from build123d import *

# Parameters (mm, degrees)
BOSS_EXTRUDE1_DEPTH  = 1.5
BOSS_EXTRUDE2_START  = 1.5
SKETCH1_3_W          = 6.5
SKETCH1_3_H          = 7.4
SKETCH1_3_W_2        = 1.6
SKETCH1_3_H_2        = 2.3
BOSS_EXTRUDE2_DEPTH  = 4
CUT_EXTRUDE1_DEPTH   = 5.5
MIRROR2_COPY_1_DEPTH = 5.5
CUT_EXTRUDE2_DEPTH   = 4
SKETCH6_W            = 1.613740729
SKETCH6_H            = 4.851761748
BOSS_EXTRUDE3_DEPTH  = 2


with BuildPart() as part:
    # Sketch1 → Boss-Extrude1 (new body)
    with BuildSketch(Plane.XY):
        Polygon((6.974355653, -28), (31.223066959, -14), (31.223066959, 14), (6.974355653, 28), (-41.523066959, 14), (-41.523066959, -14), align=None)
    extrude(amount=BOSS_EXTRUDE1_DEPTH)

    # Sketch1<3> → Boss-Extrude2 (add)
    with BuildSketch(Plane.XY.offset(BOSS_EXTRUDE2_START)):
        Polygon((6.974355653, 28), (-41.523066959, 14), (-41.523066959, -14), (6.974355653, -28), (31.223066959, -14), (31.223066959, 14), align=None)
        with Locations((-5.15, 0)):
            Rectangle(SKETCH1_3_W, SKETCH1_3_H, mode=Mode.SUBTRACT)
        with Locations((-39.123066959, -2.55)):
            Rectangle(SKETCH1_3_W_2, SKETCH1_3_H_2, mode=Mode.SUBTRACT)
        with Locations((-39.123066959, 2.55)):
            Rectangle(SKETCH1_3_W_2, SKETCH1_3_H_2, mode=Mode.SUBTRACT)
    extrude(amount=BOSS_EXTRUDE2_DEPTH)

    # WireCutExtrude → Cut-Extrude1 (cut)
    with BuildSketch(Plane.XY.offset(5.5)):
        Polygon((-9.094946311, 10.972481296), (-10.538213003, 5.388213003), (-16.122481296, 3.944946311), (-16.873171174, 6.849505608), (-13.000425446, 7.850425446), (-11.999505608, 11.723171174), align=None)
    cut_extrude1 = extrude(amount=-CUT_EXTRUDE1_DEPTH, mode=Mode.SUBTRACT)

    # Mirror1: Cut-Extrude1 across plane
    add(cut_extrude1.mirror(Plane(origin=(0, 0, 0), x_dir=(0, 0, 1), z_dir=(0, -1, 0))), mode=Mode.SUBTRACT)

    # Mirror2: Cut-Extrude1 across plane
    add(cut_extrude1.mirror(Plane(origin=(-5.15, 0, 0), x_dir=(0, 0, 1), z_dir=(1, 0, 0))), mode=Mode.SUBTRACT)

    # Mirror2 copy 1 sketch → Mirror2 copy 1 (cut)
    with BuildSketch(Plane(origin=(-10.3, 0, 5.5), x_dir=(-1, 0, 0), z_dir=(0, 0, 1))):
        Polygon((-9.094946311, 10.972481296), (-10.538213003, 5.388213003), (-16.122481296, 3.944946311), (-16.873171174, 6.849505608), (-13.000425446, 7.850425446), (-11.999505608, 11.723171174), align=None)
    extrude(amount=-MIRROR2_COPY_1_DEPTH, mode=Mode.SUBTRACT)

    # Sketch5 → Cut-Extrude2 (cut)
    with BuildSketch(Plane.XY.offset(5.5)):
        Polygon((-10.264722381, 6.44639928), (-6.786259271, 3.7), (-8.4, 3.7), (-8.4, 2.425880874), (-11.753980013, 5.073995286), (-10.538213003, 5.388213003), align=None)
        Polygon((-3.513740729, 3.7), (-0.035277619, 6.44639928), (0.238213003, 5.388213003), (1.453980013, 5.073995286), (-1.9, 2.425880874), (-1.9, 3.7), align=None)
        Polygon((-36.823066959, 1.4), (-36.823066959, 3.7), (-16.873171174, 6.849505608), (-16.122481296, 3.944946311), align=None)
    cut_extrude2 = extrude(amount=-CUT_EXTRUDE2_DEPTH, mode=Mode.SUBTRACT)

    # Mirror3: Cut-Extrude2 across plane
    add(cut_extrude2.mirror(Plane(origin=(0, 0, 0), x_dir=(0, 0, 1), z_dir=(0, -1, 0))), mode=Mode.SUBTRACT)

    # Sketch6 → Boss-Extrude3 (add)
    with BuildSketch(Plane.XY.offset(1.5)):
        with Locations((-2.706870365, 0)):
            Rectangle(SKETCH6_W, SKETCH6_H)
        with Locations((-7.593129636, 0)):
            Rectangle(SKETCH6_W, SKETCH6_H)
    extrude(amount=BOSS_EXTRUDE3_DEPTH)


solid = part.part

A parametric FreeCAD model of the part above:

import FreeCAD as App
import Part
import Sketcher
Q = App.Units.Quantity


def add_polygon(sketch, points):
    """Adds a closed chain of lines whose ends are joined by coincident constraints."""
    first, n = sketch.GeometryCount, len(points)
    for a, b in zip(points, points[1:] + points[:1]):
        sketch.addGeometry(Part.LineSegment(App.Vector(*a, 0), App.Vector(*b, 0)), False)
    for i in range(n):
        sketch.addConstraint(Sketcher.Constraint("Coincident", first + i, 2, first + (i + 1) % n, 1))

doc = App.newDocument("Part")
body = doc.addObject("PartDesign::Body", "Body")

sketch1 = body.newObject("Sketcher::SketchObject", "Sketch")
sketch1.AttachmentSupport = (doc.getObject("XY_Plane"), [""])
sketch1.MapMode = "FlatFace"
add_polygon(sketch1, [(6.974356, -28), (31.223067, -14), (31.223067, 14), (6.974356, 28), (-41.523067, 14), (-41.523067, -14)])
sketch1.addConstraint([
    Sketcher.Constraint("Vertical", 1),
    Sketcher.Constraint("Vertical", 4),
    Sketcher.Constraint("Symmetric", 2, 2, 5, 2, -1),
    Sketcher.Constraint("Horizontal", 1, 2, 3, 2),
    Sketcher.Constraint("Horizontal", 0, 2, 4, 2),
    Sketcher.Constraint("Equal", 0, 2),
    Sketcher.Constraint("DistanceY", 1, 1, 1, 2, Q("28 mm")),
    Sketcher.Constraint("Angle", 0, Q("30 deg")),
    Sketcher.Constraint("Distance", 0, Q("28 mm")),
    Sketcher.Constraint("Distance", 3, Q("50.477718 mm")),
    Sketcher.Constraint("DistanceX", -1, 1, 0, 2, Q("31.223067 mm")),
])
pad1 = body.newObject("PartDesign::Pad", "Pad")
pad1.Profile = sketch1
pad1.Length = 1.5

sketch2 = body.newObject("Sketcher::SketchObject", "Sketch001")
sketch2.AttachmentSupport = (doc.getObject("XY_Plane"), [""])
sketch2.MapMode = "FlatFace"
sketch2.AttachmentOffset = App.Placement(App.Vector(0, 0, 1.5), App.Rotation())
add_polygon(sketch2, [(6.974356, 28), (-41.523067, 14), (-41.523067, -14), (6.974356, -28), (31.223067, -14), (31.223067, 14)])
add_polygon(sketch2, [(-38.323067, -3.7), (-39.923067, -3.7), (-39.923067, -1.4), (-38.323067, -1.4)])
add_polygon(sketch2, [(-1.9, -3.7), (-8.4, -3.7), (-8.4, 3.7), (-1.9, 3.7)])
add_polygon(sketch2, [(-38.323067, 1.4), (-39.923067, 1.4), (-39.923067, 3.7), (-38.323067, 3.7)])
sketch2.addConstraint([
    Sketcher.Constraint("Vertical", 1),
    Sketcher.Constraint("Vertical", 4),
    Sketcher.Constraint("Horizontal", 6),
    Sketcher.Constraint("Vertical", 7),
    Sketcher.Constraint("Horizontal", 8),
    Sketcher.Constraint("Vertical", 9),
    Sketcher.Constraint("Horizontal", 10),
    Sketcher.Constraint("Vertical", 11),
    Sketcher.Constraint("Horizontal", 12),
    Sketcher.Constraint("Vertical", 13),
    Sketcher.Constraint("Horizontal", 14),
    Sketcher.Constraint("Vertical", 15),
    Sketcher.Constraint("Horizontal", 16),
    Sketcher.Constraint("Vertical", 17),
    Sketcher.Constraint("Symmetric", 2, 2, 5, 2, -1),
    Sketcher.Constraint("Symmetric", 7, 2, 14, 2, -1),
    Sketcher.Constraint("Symmetric", 9, 2, 16, 2, -1),
    Sketcher.Constraint("Horizontal", 1, 2, 3, 2),
    Sketcher.Constraint("Horizontal", 0, 2, 4, 2),
    Sketcher.Constraint("Horizontal", 9, 2, 10, 2),
    Sketcher.Constraint("Horizontal", 12, 2, 15, 2),
    Sketcher.Constraint("Equal", 0, 2),
    Sketcher.Constraint("DistanceY", 1, 2, 1, 1, Q("28 mm")),
    Sketcher.Constraint("Angle", 3, Q("30 deg")),
    Sketcher.Constraint("Distance", 3, Q("28 mm")),
    Sketcher.Constraint("DistanceX", 6, 2, 6, 1, Q("1.6 mm")),
    Sketcher.Constraint("DistanceX", 10, 2, 10, 1, Q("6.5 mm")),
    Sketcher.Constraint("DistanceY", 7, 1, 7, 2, Q("2.3 mm")),
    Sketcher.Constraint("DistanceY", 11, 1, 11, 2, Q("7.4 mm")),
    Sketcher.Constraint("DistanceX", 10, 2, -1, 1, Q("8.4 mm")),
    Sketcher.Constraint("DistanceX", 1, 2, 6, 2, Q("1.6 mm")),
    Sketcher.Constraint("Distance", 0, Q("50.477718 mm")),
    Sketcher.Constraint("DistanceX", 0, 2, -1, 1, Q("41.523067 mm")),
])
pad2 = body.newObject("PartDesign::Pad", "Pad001")
pad2.Profile = sketch2
pad2.Length = 4

sketch3 = body.newObject("Sketcher::SketchObject", "Sketch002")
sketch3.AttachmentSupport = (doc.getObject("XY_Plane"), [""])
sketch3.MapMode = "FlatFace"
sketch3.AttachmentOffset = App.Placement(App.Vector(0, 0, 5.5), App.Rotation())
add_polygon(sketch3, [(-10.538213, 5.388213), (-9.094946, 10.972481), (-11.999506, 11.723171), (-13.000425, 7.850425), (-16.873171, 6.849506), (-16.122481, 3.944946)])
sketch3.addConstraint([
    Sketcher.Constraint("Perpendicular", 0, 1),
    Sketcher.Constraint("Perpendicular", 1, 2),
    Sketcher.Constraint("Perpendicular", 3, 4),
    Sketcher.Constraint("Perpendicular", 4, 5),
    Sketcher.Constraint("Equal", 2, 3),
    Sketcher.Constraint("Equal", 1, 4),
    Sketcher.Constraint("Distance", 1, Q("3 mm")),
    Sketcher.Constraint("Distance", 2, Q("4 mm")),
    Sketcher.Constraint("Distance", 0, Q("5.767761 mm")),
    Sketcher.Constraint("DistanceY", -1, 1, 0, 2, Q("10.972481 mm")),
    Sketcher.Constraint("DistanceY", -1, 1, 1, 2, Q("11.723171 mm")),
    Sketcher.Constraint("DistanceX", 3, 2, -1, 1, Q("16.873171 mm")),
])
pocket1 = body.newObject("PartDesign::Pocket", "Pocket")
pocket1.Profile = sketch3
pocket1.Length = 5.5
doc.recompute()

mirrored = body.newObject("PartDesign::Mirrored", "Mirrored")
mirrored.Originals = [pocket1]
mirrored.MirrorPlane = (doc.getObject("XZ_Plane"), [""])
body.Tip = mirrored
doc.recompute()

datumplane = body.newObject("PartDesign::Plane", "DatumPlane")
datumplane.AttachmentSupport = (doc.getObject("YZ_Plane"), [""])
datumplane.MapMode = "FlatFace"
datumplane.AttachmentOffset = App.Placement(App.Vector(0, 0, -5.15), App.Rotation())
mirrored2 = body.newObject("PartDesign::Mirrored", "Mirrored001")
mirrored2.Originals = [pocket1]
mirrored2.MirrorPlane = (datumplane, [""])
body.Tip = mirrored2

sketch4 = body.newObject("Sketcher::SketchObject", "Sketch003")
sketch4.AttachmentSupport = (doc.getObject("XY_Plane"), [""])
sketch4.MapMode = "FlatFace"
sketch4.AttachmentOffset = App.Placement(App.Vector(0, 0, 5.5), App.Rotation())
add_polygon(sketch4, [(0.238213, -5.388213), (-1.205054, -10.972481), (1.699506, -11.723171), (2.700425, -7.850425), (6.573171, -6.849506), (5.822481, -3.944946)])
sketch4.addConstraint([
    Sketcher.Constraint("Perpendicular", 0, 1),
    Sketcher.Constraint("Perpendicular", 1, 2),
    Sketcher.Constraint("Perpendicular", 3, 4),
    Sketcher.Constraint("Perpendicular", 4, 5),
    Sketcher.Constraint("Equal", 2, 3),
    Sketcher.Constraint("Equal", 1, 4),
    Sketcher.Constraint("Distance", 1, Q("3 mm")),
    Sketcher.Constraint("Distance", 2, Q("4 mm")),
    Sketcher.Constraint("Distance", 0, Q("5.767761 mm")),
    Sketcher.Constraint("DistanceY", 0, 2, -1, 1, Q("10.972481 mm")),
    Sketcher.Constraint("DistanceY", 1, 2, -1, 1, Q("11.723171 mm")),
    Sketcher.Constraint("DistanceX", -1, 1, 3, 2, Q("6.573171 mm")),
])
pocket2 = body.newObject("PartDesign::Pocket", "Pocket001")
pocket2.Profile = sketch4
pocket2.Length = 5.5

sketch5 = body.newObject("Sketcher::SketchObject", "Sketch004")
sketch5.AttachmentSupport = (doc.getObject("XY_Plane"), [""])
sketch5.MapMode = "FlatFace"
sketch5.AttachmentOffset = App.Placement(App.Vector(0, 0, 5.5), App.Rotation())
add_polygon(sketch5, [(-6.786259, 3.7), (-10.264722, 6.446399), (-10.538213, 5.388213), (-11.75398, 5.073995), (-8.4, 2.425881), (-8.4, 3.7)])
add_polygon(sketch5, [(-0.035278, 6.446399), (-3.513741, 3.7), (-1.9, 3.7), (-1.9, 2.425881), (1.45398, 5.073995), (0.238213, 5.388213)])
add_polygon(sketch5, [(-36.823067, 3.7), (-36.823067, 1.4), (-16.122481, 3.944946), (-16.873171, 6.849506)])
sketch5.addConstraint([
    Sketcher.Constraint("Vertical", 4),
    Sketcher.Constraint("Horizontal", 5),
    Sketcher.Constraint("Horizontal", 7),
    Sketcher.Constraint("Vertical", 8),
    Sketcher.Constraint("Vertical", 12),
    Sketcher.Constraint("Parallel", 0, 3),
    Sketcher.Constraint("Parallel", 6, 9),
    Sketcher.Constraint("Perpendicular", 1, 10),
    Sketcher.Constraint("Perpendicular", 2, 11),
    Sketcher.Constraint("Parallel", 11, 14),
    Sketcher.Constraint("Horizontal", 5, 2, 6, 2),
    Sketcher.Constraint("Horizontal", 3, 2, 8, 2),
    Sketcher.Constraint("Horizontal", 2, 2, 9, 2),
    Sketcher.Constraint("Horizontal", 1, 2, 10, 2),
    Sketcher.Constraint("Horizontal", 0, 2, 11, 2),
    Sketcher.Constraint("Horizontal", 7, 2, 15, 2),
    Sketcher.Constraint("Equal", 5, 7),
    Sketcher.Constraint("Equal", 0, 6),
    Sketcher.Constraint("Distance", 14, Q("3 mm")),
    Sketcher.Constraint("DistanceY", 12, 2, 12, 1, Q("2.3 mm")),
    Sketcher.Constraint("DistanceX", 3, 2, -1, 1, Q("8.4 mm")),
    Sketcher.Constraint("DistanceY", -1, 1, 4, 2, Q("3.7 mm")),
    Sketcher.Constraint("DistanceX", 7, 2, -1, 1, Q("1.9 mm")),
    Sketcher.Constraint("DistanceX", 5, 1, 5, 2, Q("1.613741 mm")),
    Sketcher.Constraint("DistanceY", 4, 1, 4, 2, Q("1.274119 mm")),
    Sketcher.Constraint("DistanceY", -1, 1, 0, 2, Q("6.446399 mm")),
    Sketcher.Constraint("DistanceX", 13, 2, 2, 2, Q("4.368501 mm")),
    Sketcher.Constraint("Distance", 3, Q("4.27337 mm")),
    Sketcher.Constraint("DistanceX", 2, 2, -1, 1, Q("11.75398 mm")),
    Sketcher.Constraint("DistanceX", 14, 2, -1, 1, Q("16.873171 mm")),
    Sketcher.Constraint("DistanceY", 13, 2, 2, 2, Q("1.129049 mm")),
    Sketcher.Constraint("Distance", 13, Q("20.856438 mm")),
])
pocket3 = body.newObject("PartDesign::Pocket", "Pocket002")
pocket3.Profile = sketch5
pocket3.Length = 4
doc.recompute()

mirrored3 = body.newObject("PartDesign::Mirrored", "Mirrored002")
mirrored3.Originals = [pocket3]
mirrored3.MirrorPlane = (doc.getObject("XZ_Plane"), [""])
body.Tip = mirrored3

sketch6 = body.newObject("Sketcher::SketchObject", "Sketch005")
sketch6.AttachmentSupport = (doc.getObject("XY_Plane"), [""])
sketch6.MapMode = "FlatFace"
sketch6.AttachmentOffset = App.Placement(App.Vector(0, 0, 1.5), App.Rotation())
add_polygon(sketch6, [(-3.513741, 2.425881), (-3.513741, -2.425881), (-1.9, -2.425881), (-1.9, 2.425881)])
add_polygon(sketch6, [(-8.4, 2.425881), (-8.4, -2.425881), (-6.786259, -2.425881), (-6.786259, 2.425881)])
sketch6.addConstraint([
    Sketcher.Constraint("Vertical", 0),
    Sketcher.Constraint("Horizontal", 1),
    Sketcher.Constraint("Vertical", 2),
    Sketcher.Constraint("Horizontal", 3),
    Sketcher.Constraint("Vertical", 4),
    Sketcher.Constraint("Horizontal", 5),
    Sketcher.Constraint("Vertical", 6),
    Sketcher.Constraint("Horizontal", 7),
    Sketcher.Constraint("Horizontal", 1, 2, 4, 2),
    Sketcher.Constraint("Horizontal", 3, 2, 6, 2),
    Sketcher.Constraint("Equal", 3, 5),
    Sketcher.Constraint("DistanceX", 1, 2, -1, 1, Q("1.9 mm")),
    Sketcher.Constraint("DistanceX", 4, 2, -1, 1, Q("8.4 mm")),
    Sketcher.Constraint("DistanceX", 1, 1, 1, 2, Q("1.613741 mm")),
    Sketcher.Constraint("DistanceY", 0, 2, 0, 1, Q("4.851762 mm")),
    Sketcher.Constraint("DistanceY", 0, 2, -1, 1, Q("2.425881 mm")),
])
pad3 = body.newObject("PartDesign::Pad", "Pad002")
pad3.Profile = sketch6
pad3.Length = 2

doc.recompute()
